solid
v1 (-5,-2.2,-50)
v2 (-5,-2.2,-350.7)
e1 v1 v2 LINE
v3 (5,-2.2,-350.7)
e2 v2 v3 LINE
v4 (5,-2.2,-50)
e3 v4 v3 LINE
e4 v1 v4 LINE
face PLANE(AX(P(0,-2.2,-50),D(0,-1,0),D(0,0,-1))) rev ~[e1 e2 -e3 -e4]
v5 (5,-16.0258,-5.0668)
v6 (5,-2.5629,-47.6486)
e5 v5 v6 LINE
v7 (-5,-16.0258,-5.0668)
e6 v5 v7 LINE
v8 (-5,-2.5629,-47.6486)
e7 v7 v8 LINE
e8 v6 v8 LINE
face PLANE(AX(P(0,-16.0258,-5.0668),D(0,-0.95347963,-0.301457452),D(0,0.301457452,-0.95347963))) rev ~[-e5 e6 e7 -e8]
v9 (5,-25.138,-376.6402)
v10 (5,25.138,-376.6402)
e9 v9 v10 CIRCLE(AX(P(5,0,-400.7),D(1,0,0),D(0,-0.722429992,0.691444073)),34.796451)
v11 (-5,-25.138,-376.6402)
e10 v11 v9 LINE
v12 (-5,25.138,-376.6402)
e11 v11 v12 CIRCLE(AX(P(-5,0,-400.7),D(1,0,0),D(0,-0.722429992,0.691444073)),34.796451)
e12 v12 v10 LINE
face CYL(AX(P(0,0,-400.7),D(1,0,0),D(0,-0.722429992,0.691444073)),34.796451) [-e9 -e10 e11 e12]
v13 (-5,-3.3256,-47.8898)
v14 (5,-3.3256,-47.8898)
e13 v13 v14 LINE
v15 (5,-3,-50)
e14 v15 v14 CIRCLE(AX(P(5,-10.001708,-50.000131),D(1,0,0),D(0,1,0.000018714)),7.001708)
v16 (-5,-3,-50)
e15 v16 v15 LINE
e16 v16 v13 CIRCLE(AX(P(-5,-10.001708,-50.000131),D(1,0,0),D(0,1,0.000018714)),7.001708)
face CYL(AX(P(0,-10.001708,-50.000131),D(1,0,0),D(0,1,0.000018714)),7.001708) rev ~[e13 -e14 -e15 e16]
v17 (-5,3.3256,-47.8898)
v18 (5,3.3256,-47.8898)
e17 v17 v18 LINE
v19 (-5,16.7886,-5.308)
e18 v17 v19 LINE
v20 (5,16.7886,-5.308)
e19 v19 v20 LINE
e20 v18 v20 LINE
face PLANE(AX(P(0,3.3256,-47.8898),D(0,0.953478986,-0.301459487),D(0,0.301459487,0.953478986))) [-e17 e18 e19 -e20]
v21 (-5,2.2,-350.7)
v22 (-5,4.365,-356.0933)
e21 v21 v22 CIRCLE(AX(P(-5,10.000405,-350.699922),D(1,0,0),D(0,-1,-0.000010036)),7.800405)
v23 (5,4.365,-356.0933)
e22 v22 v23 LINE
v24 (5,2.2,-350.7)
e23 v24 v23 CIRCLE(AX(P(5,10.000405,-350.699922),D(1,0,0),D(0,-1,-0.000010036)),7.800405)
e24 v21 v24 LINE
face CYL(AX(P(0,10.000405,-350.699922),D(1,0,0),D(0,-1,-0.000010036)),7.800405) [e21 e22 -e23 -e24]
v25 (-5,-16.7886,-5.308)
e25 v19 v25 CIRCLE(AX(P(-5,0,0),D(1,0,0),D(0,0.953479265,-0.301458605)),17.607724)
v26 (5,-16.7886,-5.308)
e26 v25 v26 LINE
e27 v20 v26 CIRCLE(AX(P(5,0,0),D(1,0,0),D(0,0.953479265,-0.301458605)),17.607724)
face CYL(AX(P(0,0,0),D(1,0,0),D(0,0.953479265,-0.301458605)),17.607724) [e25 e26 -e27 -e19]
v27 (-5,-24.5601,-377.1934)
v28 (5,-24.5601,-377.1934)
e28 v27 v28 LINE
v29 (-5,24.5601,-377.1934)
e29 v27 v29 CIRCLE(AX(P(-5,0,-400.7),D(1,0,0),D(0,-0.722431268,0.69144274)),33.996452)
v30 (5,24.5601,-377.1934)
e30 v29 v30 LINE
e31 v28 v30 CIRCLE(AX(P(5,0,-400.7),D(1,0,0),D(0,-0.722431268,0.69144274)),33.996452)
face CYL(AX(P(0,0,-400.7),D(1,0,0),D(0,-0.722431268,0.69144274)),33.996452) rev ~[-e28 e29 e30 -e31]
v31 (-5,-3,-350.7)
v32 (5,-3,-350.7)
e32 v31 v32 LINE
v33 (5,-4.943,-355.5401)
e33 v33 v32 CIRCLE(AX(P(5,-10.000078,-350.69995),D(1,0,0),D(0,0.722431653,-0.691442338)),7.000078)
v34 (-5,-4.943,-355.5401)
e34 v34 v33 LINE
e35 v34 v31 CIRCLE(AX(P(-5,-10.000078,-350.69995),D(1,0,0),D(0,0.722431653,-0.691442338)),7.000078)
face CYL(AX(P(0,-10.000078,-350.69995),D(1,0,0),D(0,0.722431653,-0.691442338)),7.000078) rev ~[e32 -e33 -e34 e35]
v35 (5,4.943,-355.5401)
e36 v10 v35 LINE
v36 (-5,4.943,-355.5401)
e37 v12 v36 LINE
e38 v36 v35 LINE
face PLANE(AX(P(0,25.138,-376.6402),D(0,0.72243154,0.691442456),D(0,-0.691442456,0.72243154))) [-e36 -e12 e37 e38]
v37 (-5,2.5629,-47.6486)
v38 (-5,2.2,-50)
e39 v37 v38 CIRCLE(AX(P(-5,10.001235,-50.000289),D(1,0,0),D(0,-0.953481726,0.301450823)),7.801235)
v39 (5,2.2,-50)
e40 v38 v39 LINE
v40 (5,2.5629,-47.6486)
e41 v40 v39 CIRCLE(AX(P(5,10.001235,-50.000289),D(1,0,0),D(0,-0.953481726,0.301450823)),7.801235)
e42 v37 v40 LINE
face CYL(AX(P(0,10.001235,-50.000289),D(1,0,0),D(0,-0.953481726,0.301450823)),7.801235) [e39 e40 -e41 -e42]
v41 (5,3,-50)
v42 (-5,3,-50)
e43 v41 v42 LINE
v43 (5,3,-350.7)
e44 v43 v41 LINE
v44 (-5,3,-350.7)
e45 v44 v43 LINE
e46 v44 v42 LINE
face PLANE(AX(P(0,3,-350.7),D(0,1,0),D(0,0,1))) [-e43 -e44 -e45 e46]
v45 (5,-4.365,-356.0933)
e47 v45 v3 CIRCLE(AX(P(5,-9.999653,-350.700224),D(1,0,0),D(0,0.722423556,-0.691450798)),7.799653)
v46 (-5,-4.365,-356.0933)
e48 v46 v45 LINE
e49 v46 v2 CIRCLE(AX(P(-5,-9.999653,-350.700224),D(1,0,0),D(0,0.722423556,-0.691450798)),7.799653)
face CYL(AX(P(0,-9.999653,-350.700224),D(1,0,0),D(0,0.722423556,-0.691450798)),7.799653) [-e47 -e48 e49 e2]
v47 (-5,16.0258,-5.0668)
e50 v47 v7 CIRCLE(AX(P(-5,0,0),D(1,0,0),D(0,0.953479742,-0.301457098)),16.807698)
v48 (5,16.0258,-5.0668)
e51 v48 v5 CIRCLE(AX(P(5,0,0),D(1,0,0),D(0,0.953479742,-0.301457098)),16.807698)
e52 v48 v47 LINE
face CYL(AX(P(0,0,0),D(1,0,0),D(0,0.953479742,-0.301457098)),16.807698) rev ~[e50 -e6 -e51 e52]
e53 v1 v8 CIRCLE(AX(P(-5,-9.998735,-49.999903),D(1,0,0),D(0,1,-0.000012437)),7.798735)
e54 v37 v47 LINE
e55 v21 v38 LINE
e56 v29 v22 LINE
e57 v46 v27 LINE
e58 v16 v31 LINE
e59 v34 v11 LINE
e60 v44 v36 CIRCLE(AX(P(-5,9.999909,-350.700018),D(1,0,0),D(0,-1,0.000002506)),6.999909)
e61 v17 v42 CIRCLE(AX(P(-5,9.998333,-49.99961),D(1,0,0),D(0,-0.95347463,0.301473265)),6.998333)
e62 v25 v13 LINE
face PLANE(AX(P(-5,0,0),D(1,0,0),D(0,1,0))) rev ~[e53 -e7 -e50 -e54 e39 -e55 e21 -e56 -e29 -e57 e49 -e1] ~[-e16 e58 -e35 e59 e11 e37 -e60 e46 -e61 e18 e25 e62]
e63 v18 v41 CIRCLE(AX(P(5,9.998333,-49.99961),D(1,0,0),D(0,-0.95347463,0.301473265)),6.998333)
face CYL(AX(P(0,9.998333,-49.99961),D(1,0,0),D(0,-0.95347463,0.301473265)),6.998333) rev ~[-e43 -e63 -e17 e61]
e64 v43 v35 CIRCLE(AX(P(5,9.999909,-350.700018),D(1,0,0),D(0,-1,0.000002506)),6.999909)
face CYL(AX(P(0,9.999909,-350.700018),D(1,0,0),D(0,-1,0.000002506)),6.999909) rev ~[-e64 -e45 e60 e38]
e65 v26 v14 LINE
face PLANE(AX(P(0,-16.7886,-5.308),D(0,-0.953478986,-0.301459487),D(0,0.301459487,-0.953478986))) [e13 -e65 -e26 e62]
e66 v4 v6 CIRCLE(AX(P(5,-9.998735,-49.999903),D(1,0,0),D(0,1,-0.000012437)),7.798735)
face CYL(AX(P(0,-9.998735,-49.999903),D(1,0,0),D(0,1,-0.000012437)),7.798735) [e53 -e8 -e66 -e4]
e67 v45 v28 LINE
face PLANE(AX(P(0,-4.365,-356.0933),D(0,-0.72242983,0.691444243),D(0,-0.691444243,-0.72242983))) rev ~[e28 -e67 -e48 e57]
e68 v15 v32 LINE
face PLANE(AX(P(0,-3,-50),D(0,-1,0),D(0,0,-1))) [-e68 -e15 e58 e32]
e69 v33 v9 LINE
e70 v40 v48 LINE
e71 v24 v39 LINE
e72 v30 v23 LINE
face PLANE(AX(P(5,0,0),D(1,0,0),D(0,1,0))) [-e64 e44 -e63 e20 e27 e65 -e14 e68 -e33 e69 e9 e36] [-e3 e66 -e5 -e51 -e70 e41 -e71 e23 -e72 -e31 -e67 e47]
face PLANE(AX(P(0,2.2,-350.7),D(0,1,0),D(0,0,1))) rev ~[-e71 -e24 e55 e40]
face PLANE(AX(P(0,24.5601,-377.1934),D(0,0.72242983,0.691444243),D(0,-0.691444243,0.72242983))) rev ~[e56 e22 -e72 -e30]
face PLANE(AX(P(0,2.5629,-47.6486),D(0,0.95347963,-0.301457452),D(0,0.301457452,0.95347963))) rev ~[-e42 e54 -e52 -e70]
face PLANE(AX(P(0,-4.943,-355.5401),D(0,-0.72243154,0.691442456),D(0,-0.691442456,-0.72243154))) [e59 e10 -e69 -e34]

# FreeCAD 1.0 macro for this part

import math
import FreeCAD as App
import Part
import Sketcher

V = App.Vector
Q = App.Units.Quantity

doc = App.newDocument("Part")
body = doc.addObject("PartDesign::Body", "Body")

# Sketch on YZ plane
sketch1 = body.newObject("Sketcher::SketchObject", "Sketch")
sketch1.AttachmentSupport = (doc.getObject("YZ_Plane"), [""])
sketch1.MapMode = "FlatFace"
sketch1.addGeometry([
    Part.ArcOfCircle(Part.Circle(V(10, -50, 0), V(0, 0, 1), 7), math.radians(162.45), math.radians(180)),  # 0
    Part.LineSegment(V(3.3, -47.9, 0), V(16.8, -5.3, 0)),  # 1
    Part.ArcOfCircle(Part.Circle(V(0, 0, 0), V(0, 0, 1), 17.6), math.radians(-18), math.radians(198)),  # 2
    Part.LineSegment(V(-16.8, -5.3, 0), V(-3.3, -47.9, 0)),  # 3
    Part.ArcOfCircle(Part.Circle(V(-10, -50, 0), V(0, 0, 1), 7), math.radians(0), math.radians(17.54)),  # 4
    Part.LineSegment(V(-3, -50, 0), V(-3, -350.7, 0)),  # 5
    Part.ArcOfCircle(Part.Circle(V(-10, -350.7, 0), V(0, 0, 1), 7), math.radians(-44), math.radians(0)),  # 6
    Part.LineSegment(V(-4.9, -355.5, 0), V(-25.1, -376.6, 0)),  # 7
    Part.ArcOfCircle(Part.Circle(V(0, -400.7, 0), V(0, 0, 1), 34.8), math.radians(136), math.radians(404)),  # 8
    Part.LineSegment(V(25.1, -376.6, 0), V(4.9, -355.5, 0)),  # 9
    Part.ArcOfCircle(Part.Circle(V(10, -350.7, 0), V(0, 0, 1), 7), math.radians(180), math.radians(224)),  # 10
    Part.LineSegment(V(3, -350.7, 0), V(3, -50, 0)),  # 11
    Part.LineSegment(V(16, -5.1, 0), V(2.6, -47.6, 0)),  # 12
    Part.ArcOfCircle(Part.Circle(V(10, -50, 0), V(0, 0, 1), 7.8), math.radians(162.46), math.radians(180)),  # 13
    Part.LineSegment(V(2.2, -50, 0), V(2.2, -350.7, 0)),  # 14
    Part.ArcOfCircle(Part.Circle(V(10, -350.7, 0), V(0, 0, 1), 7.8), math.radians(180), math.radians(224)),  # 15
    Part.LineSegment(V(4.4, -356.1, 0), V(24.6, -377.2, 0)),  # 16
    Part.ArcOfCircle(Part.Circle(V(0, -400.7, 0), V(0, 0, 1), 34), math.radians(136), math.radians(404)),  # 17
    Part.LineSegment(V(-24.6, -377.2, 0), V(-4.4, -356.1, 0)),  # 18
    Part.ArcOfCircle(Part.Circle(V(-10, -350.7, 0), V(0, 0, 1), 7.8), math.radians(-44), math.radians(0)),  # 19
    Part.LineSegment(V(-2.2, -350.7, 0), V(-2.2, -50, 0)),  # 20
    Part.ArcOfCircle(Part.Circle(V(-10, -50, 0), V(0, 0, 1), 7.8), math.radians(0), math.radians(17.55)),  # 21
    Part.LineSegment(V(-2.6, -47.6, 0), V(-16, -5.1, 0)),  # 22
    Part.ArcOfCircle(Part.Circle(V(0, 0, 0), V(0, 0, 1), 16.8), math.radians(-18), math.radians(198)),  # 23
], False)
sketch1.addConstraint([
    Sketcher.Constraint("Tangent", 0, 1, 1, 1),
    Sketcher.Constraint("Tangent", 1, 2, 2, 1),
    Sketcher.Constraint("Tangent", 2, 2, 3, 1),
    Sketcher.Constraint("Tangent", 3, 2, 4, 2),
    Sketcher.Constraint("Tangent", 4, 1, 5, 1),
    Sketcher.Constraint("Tangent", 5, 2, 6, 2),
    Sketcher.Constraint("Tangent", 6, 1, 7, 1),
    Sketcher.Constraint("Tangent", 7, 2, 8, 1),
    Sketcher.Constraint("Tangent", 8, 2, 9, 1),
    Sketcher.Constraint("Tangent", 9, 2, 10, 2),
    Sketcher.Constraint("Tangent", 10, 1, 11, 1),
    Sketcher.Constraint("Tangent", 11, 2, 0, 2),
    Sketcher.Constraint("Tangent", 12, 2, 13, 1),
    Sketcher.Constraint("Tangent", 13, 2, 14, 1),
    Sketcher.Constraint("Tangent", 14, 2, 15, 1),
    Sketcher.Constraint("Tangent", 15, 2, 16, 1),
    Sketcher.Constraint("Tangent", 16, 2, 17, 2),
    Sketcher.Constraint("Tangent", 17, 1, 18, 1),
    Sketcher.Constraint("Tangent", 18, 2, 19, 1),
    Sketcher.Constraint("Tangent", 19, 2, 20, 1),
    Sketcher.Constraint("Tangent", 20, 2, 21, 1),
    Sketcher.Constraint("Tangent", 21, 2, 22, 1),
    Sketcher.Constraint("Tangent", 22, 2, 23, 2),
    Sketcher.Constraint("Tangent", 23, 1, 12, 1),
    Sketcher.Constraint("Vertical", 5),
    Sketcher.Constraint("Vertical", 11),
    Sketcher.Constraint("Vertical", 14),
    Sketcher.Constraint("Vertical", 20),
    Sketcher.Constraint("Coincident", 2, 3, -1, 1),
    Sketcher.Constraint("Coincident", 23, 3, -1, 1),
    Sketcher.Constraint("Coincident", 15, 3, 10, 3),
    Sketcher.Constraint("Coincident", 17, 3, 8, 3),
    Sketcher.Constraint("Coincident", 19, 3, 6, 3),
    Sketcher.Constraint("Equal", 6, 10),
    Sketcher.Constraint("Equal", 15, 19),
    Sketcher.Constraint("Symmetric", 6, 3, 10, 3, -2),
    Sketcher.Constraint("Symmetric", 0, 1, 3, 2, -2),
    Sketcher.Constraint("Symmetric", 12, 2, 21, 2, -2),
    Sketcher.Constraint("PointOnObject", 8, 3, -2),
    Sketcher.Constraint("Parallel", 1, 12),
    Sketcher.Constraint("Parallel", 9, 16),
    Sketcher.Constraint("Horizontal", 4, 3, 13, 3),
    Sketcher.Constraint("Equal", 3, 12),
    Sketcher.Constraint("Radius", 6, Q("7 mm")),
    Sketcher.Constraint("DistanceX", 6, 3, -1, 1, Q("10 mm")),
    Sketcher.Constraint("DistanceY", 21, 3, -1, 1, Q("50 mm")),
    Sketcher.Constraint("DistanceY", 8, 3, 6, 3, Q("50 mm")),
    Sketcher.Constraint("DistanceY", 8, 3, -1, 1, Q("400.7 mm")),
    Sketcher.Constraint("Radius", 15, Q("7.8 mm")),
    Sketcher.Constraint("DistanceX", 4, 3, 0, 3, Q("20 mm")),
    Sketcher.Constraint("Radius", 2, Q("17.6077 mm")),
    Sketcher.Constraint("Radius", 8, Q("34.7965 mm")),
])
pad1 = body.newObject("PartDesign::Pad", "Pad")
pad1.Profile = sketch1
pad1.Length = 10
pad1.Midplane = True

doc.recompute()
